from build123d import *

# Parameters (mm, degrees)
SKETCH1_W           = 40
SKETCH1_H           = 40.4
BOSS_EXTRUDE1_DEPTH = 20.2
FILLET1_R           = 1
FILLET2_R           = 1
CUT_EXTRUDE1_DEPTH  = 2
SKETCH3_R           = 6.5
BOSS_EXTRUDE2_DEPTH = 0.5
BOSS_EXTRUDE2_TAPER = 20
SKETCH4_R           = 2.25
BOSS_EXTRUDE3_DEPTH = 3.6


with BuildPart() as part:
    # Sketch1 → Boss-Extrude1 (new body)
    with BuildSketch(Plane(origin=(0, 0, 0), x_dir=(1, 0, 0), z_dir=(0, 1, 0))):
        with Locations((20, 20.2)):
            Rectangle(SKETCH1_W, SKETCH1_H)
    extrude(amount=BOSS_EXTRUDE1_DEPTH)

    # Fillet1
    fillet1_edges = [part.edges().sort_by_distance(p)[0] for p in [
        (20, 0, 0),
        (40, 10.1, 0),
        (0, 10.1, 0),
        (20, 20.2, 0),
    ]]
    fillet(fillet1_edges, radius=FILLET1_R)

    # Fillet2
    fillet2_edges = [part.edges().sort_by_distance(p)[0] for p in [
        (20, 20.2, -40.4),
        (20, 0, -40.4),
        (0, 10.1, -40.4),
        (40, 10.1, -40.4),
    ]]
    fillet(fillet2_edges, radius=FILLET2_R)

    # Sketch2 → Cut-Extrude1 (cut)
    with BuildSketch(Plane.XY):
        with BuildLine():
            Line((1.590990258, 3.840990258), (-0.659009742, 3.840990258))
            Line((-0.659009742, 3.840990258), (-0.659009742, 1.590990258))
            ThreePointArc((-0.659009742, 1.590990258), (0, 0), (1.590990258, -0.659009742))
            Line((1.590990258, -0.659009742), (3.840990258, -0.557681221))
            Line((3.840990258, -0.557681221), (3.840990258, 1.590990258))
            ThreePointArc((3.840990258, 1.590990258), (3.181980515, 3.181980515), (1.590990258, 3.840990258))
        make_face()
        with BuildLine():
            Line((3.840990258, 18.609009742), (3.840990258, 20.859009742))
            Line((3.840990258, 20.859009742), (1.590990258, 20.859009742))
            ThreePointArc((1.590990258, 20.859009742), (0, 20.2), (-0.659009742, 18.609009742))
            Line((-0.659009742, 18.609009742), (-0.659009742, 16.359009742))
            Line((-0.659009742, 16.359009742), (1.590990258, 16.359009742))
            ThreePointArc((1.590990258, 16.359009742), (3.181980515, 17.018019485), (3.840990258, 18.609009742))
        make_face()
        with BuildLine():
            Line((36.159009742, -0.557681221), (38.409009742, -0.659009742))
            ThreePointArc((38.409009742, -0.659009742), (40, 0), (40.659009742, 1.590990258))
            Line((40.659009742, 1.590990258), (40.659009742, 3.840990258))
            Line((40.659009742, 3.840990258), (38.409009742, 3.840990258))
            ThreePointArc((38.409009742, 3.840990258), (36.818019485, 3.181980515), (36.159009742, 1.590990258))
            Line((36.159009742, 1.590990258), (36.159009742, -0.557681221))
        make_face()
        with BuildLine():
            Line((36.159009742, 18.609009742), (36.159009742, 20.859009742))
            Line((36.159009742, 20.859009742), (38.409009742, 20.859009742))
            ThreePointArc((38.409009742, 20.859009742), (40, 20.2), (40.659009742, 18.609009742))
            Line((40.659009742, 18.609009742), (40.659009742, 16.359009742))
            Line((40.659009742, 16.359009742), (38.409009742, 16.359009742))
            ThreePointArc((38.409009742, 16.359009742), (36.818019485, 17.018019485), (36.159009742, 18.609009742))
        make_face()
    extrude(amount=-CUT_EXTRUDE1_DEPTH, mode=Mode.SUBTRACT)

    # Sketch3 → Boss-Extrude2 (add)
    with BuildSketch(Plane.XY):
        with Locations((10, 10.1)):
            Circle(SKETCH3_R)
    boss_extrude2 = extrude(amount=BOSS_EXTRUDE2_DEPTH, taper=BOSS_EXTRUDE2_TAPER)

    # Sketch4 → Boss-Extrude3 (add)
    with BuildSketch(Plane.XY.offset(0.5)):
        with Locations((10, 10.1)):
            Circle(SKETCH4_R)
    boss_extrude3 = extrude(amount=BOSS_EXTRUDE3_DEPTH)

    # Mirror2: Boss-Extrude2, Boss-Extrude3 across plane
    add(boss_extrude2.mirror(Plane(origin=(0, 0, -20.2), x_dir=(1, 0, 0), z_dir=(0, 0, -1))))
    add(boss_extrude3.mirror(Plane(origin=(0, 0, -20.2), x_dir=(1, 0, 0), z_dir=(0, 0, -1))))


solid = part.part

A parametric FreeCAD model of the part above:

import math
import FreeCAD as App
import Part
import Sketcher


def edges_at(feature, points):
    """Names of the edges that pass closest to the given points."""
    edges = feature.Shape.Edges
    near = lambda p: min(range(len(edges)), key=lambda i: edges[i].distToShape(Part.Vertex(*p))[0])
    return sorted({f"Edge{near(p) + 1}" for p in points})


def add_polygon(sketch, points):
    """Adds a closed chain of lines whose ends are joined by coincident constraints."""
    first, n = sketch.GeometryCount, len(points)
    for a, b in zip(points, points[1:] + points[:1]):
        sketch.addGeometry(Part.LineSegment(App.Vector(*a, 0), App.Vector(*b, 0)), False)
    for i in range(n):
        sketch.addConstraint(Sketcher.Constraint("Coincident", first + i, 2, first + (i + 1) % n, 1))

doc = App.newDocument("Part")
params = doc.addObject("Spreadsheet::Sheet", "Params")
for row, (alias, value) in enumerate([
    ("sketch1_width", "40 mm"),
    ("sketch1_height", "40.4 mm"),
    ("pad1_length", "20.2 mm"),
    ("fillet_radius", "1 mm"),
    ("fillet2_radius", "1 mm"),
    ("sketch2_radius", "2.25 mm"),
    ("pocket1_length", "2 mm"),
    ("sketch3_diameter", "13 mm"),
    ("pad2_length", "0.5 mm"),
    ("pad2_taper", "-20 deg"),
    ("sketch4_diameter", "4.5 mm"),
    ("pad3_length", "3.6 mm"),
], start=1):
    params.set(f"A{row}", alias)
    params.set(f"B{row}", "=" + value)
    params.setAlias(f"B{row}", alias)

body = doc.addObject("PartDesign::Body", "Body")

sketch1 = doc.addObject("Sketcher::SketchObject", "Sketch")
body.addObject(sketch1)
sketch1.AttachmentSupport = (doc.XZ_Plane, [""])
sketch1.MapMode = "FlatFace"
add_polygon(sketch1, [(0, -40), (0, 0), (40, 0), (40, -40)])
sketch1.addConstraint([
    Sketcher.Constraint("Vertical", 0),
    Sketcher.Constraint("Horizontal", 1),
    Sketcher.Constraint("Vertical", 2),
    Sketcher.Constraint("Horizontal", 3),
    Sketcher.Constraint("Coincident", 0, 2, -1, 1),
    Sketcher.Constraint("DistanceX", 1, 1, 1, 2, 40.0),
    Sketcher.Constraint("DistanceY", 0, 1, 0, 2, 40.4),
])
sketch1.setExpression("Constraints[9]", "Params.sketch1_width")
sketch1.setExpression("Constraints[10]", "Params.sketch1_height")
pad1 = doc.addObject("PartDesign::Pad", "Pad")
body.addObject(pad1)
pad1.Profile = sketch1
pad1.setExpression("Length", "Params.pad1_length")
pad1.Reversed = True
doc.recompute()

fillet = doc.addObject("PartDesign::Fillet", "Fillet")
body.addObject(fillet)
fillet.Base = (pad1, edges_at(pad1, [
    (20, 0, 0),
    (40, 10.1, 0),
    (0, 10.1, 0),
    (20, 20.2, 0),
]))
fillet.setExpression("Radius", "Params.fillet_radius")
doc.recompute()

fillet2 = doc.addObject("PartDesign::Fillet", "Fillet001")
body.addObject(fillet2)
fillet2.Base = (fillet, edges_at(fillet, [
    (20, 20.2, -40.4),
    (20, 0, -40.4),
    (0, 10.1, -40.4),
    (40, 10.1, -40.4),
]))
fillet2.setExpression("Radius", "Params.fillet2_radius")

sketch2 = doc.addObject("Sketcher::SketchObject", "Sketch001")
body.addObject(sketch2)
sketch2.AttachmentSupport = (doc.XY_Plane, [""])
sketch2.MapMode = "FlatFace"
sketch2.addGeometry([
    Part.LineSegment(App.Vector(1.6, 3.8, 0), App.Vector(-0.7, 3.8, 0)),
    Part.LineSegment(App.Vector(-0.7, 3.8, 0), App.Vector(-0.7, 1.6, 0)),
    Part.ArcOfCircle(Part.Circle(App.Vector(1.6, 1.6, 0), App.Vector(0, 0, 1), 2.2), math.radians(180), math.radians(270)),
    Part.LineSegment(App.Vector(1.6, -0.7, 0), App.Vector(3.8, -0.6, 0)),
    Part.LineSegment(App.Vector(3.8, -0.6, 0), App.Vector(3.8, 1.6, 0)),
    Part.ArcOfCircle(Part.Circle(App.Vector(1.6, 1.6, 0), App.Vector(0, 0, 1), 2.3), math.radians(0), math.radians(90)),
    Part.LineSegment(App.Vector(3.8, 18.6, 0), App.Vector(3.8, 20.9, 0)),
    Part.LineSegment(App.Vector(3.8, 20.9, 0), App.Vector(1.6, 20.9, 0)),
    Part.ArcOfCircle(Part.Circle(App.Vector(1.6, 18.6, 0), App.Vector(0, 0, 1), 2.2), math.radians(90), math.radians(180)),
    Part.LineSegment(App.Vector(-0.7, 18.6, 0), App.Vector(-0.7, 16.4, 0)),
    Part.LineSegment(App.Vector(-0.7, 16.4, 0), App.Vector(1.6, 16.4, 0)),
    Part.ArcOfCircle(Part.Circle(App.Vector(1.6, 18.6, 0), App.Vector(0, 0, 1), 2.3), math.radians(-90), math.radians(0)),
    Part.LineSegment(App.Vector(36.2, -0.6, 0), App.Vector(38.4, -0.7, 0)),
    Part.ArcOfCircle(Part.Circle(App.Vector(38.4, 1.6, 0), App.Vector(0, 0, 1), 2.2), math.radians(-90), math.radians(0)),
    Part.LineSegment(App.Vector(40.7, 1.6, 0), App.Vector(40.7, 3.8, 0)),
    Part.LineSegment(App.Vector(40.7, 3.8, 0), App.Vector(38.4, 3.8, 0)),
    Part.ArcOfCircle(Part.Circle(App.Vector(38.4, 1.6, 0), App.Vector(0, 0, 1), 2.3), math.radians(90), math.radians(180)),
    Part.LineSegment(App.Vector(36.2, 1.6, 0), App.Vector(36.2, -0.6, 0)),
    Part.LineSegment(App.Vector(36.2, 20.9, 0), App.Vector(36.2, 18.6, 0)),
    Part.ArcOfCircle(Part.Circle(App.Vector(38.4, 18.6, 0), App.Vector(0, 0, 1), 2.3), math.radians(-180), math.radians(-90)),
    Part.LineSegment(App.Vector(38.4, 16.4, 0), App.Vector(40.7, 16.4, 0)),
    Part.LineSegment(App.Vector(40.7, 16.4, 0), App.Vector(40.7, 18.6, 0)),
    Part.ArcOfCircle(Part.Circle(App.Vector(38.4, 18.6, 0), App.Vector(0, 0, 1), 2.2), math.radians(0), math.radians(90)),
    Part.LineSegment(App.Vector(38.4, 20.9, 0), App.Vector(36.2, 20.9, 0)),
], False)
sketch2.addConstraint([
    Sketcher.Constraint("Coincident", 0, 2, 1, 1),
    Sketcher.Constraint("Tangent", 1, 2, 2, 1),
    Sketcher.Constraint("Coincident", 2, 2, 3, 1),
    Sketcher.Constraint("Coincident", 3, 2, 4, 1),
    Sketcher.Constraint("Tangent", 4, 2, 5, 1),
    Sketcher.Constraint("Tangent", 5, 2, 0, 1),
    Sketcher.Constraint("Coincident", 6, 2, 7, 1),
    Sketcher.Constraint("Tangent", 7, 2, 8, 1),
    Sketcher.Constraint("Tangent", 8, 2, 9, 1),
    Sketcher.Constraint("Coincident", 9, 2, 10, 1),
    Sketcher.Constraint("Tangent", 10, 2, 11, 1),
    Sketcher.Constraint("Tangent", 11, 2, 6, 1),
    Sketcher.Constraint("Coincident", 12, 2, 13, 1),
    Sketcher.Constraint("Tangent", 13, 2, 14, 1),
    Sketcher.Constraint("Coincident", 14, 2, 15, 1),
    Sketcher.Constraint("Tangent", 15, 2, 16, 1),
    Sketcher.Constraint("Tangent", 16, 2, 17, 1),
    Sketcher.Constraint("Coincident", 17, 2, 12, 1),
    Sketcher.Constraint("Tangent", 18, 2, 19, 1),
    Sketcher.Constraint("Tangent", 19, 2, 20, 1),
    Sketcher.Constraint("Coincident", 20, 2, 21, 1),
    Sketcher.Constraint("Tangent", 21, 2, 22, 1),
    Sketcher.Constraint("Tangent", 22, 2, 23, 1),
    Sketcher.Constraint("Coincident", 23, 2, 18, 1),
    Sketcher.Constraint("Horizontal", 0),
    Sketcher.Constraint("Vertical", 1),
    Sketcher.Constraint("Vertical", 4),
    Sketcher.Constraint("Vertical", 6),
    Sketcher.Constraint("Horizontal", 7),
    Sketcher.Constraint("Vertical", 9),
    Sketcher.Constraint("Horizontal", 10),
    Sketcher.Constraint("Vertical", 14),
    Sketcher.Constraint("Horizontal", 15),
    Sketcher.Constraint("Vertical", 17),
    Sketcher.Constraint("Vertical", 18),
    Sketcher.Constraint("Horizontal", 20),
    Sketcher.Constraint("Vertical", 21),
    Sketcher.Constraint("Horizontal", 23),
    Sketcher.Constraint("Coincident", 5, 3, 2, 3),
    Sketcher.Constraint("Coincident", 11, 3, 8, 3),
    Sketcher.Constraint("Coincident", 16, 3, 13, 3),
    Sketcher.Constraint("Coincident", 22, 3, 19, 3),
    Sketcher.Constraint("Equal", 2, 5),
    Sketcher.Constraint("Equal", 5, 8),
    Sketcher.Constraint("Equal", 8, 11),
    Sketcher.Constraint("Equal", 11, 13),
    Sketcher.Constraint("Equal", 13, 16),
    Sketcher.Constraint("Equal", 16, 19),
    Sketcher.Constraint("Equal", 19, 22),
    Sketcher.Constraint("Horizontal", 5, 3, 13, 3),
    Sketcher.Constraint("Horizontal", 11, 3, 19, 3),
    Sketcher.Constraint("Horizontal", 3, 2, 17, 2),
    Sketcher.Constraint("Vertical", 5, 3, 8, 3),
    Sketcher.Constraint("Vertical", 16, 3, 19, 3),
    Sketcher.Constraint("Vertical", 11, 3, 2, 2),
    Sketcher.Constraint("Vertical", 22, 3, 12, 2),
    Sketcher.Constraint("Radius", 2, 2.25),
    Sketcher.Constraint("DistanceY", 4, 1, 4, 2, 2.148671),
    Sketcher.Constraint("DistanceX", -1, 1, 2, 3, 1.59099),
    Sketcher.Constraint("DistanceY", -1, 1, 2, 3, 1.59099),
    Sketcher.Constraint("DistanceY", -1, 1, 8, 3, 18.60901),
    Sketcher.Constraint("DistanceX", -1, 1, 13, 3, 38.40901),
])
sketch2.setExpression("Constraints[56]", "Params.sketch2_radius")
pocket1 = doc.addObject("PartDesign::Pocket", "Pocket")
body.addObject(pocket1)
pocket1.Profile = sketch2
pocket1.setExpression("Length", "Params.pocket1_length")

sketch3 = doc.addObject("Sketcher::SketchObject", "Sketch002")
body.addObject(sketch3)
sketch3.AttachmentSupport = (doc.XY_Plane, [""])
sketch3.MapMode = "FlatFace"
sketch3.addGeometry(Part.Circle(App.Vector(10, 10, 0), App.Vector(0, 0, 1), 6), False)
sketch3.addConstraint([
    Sketcher.Constraint("Diameter", 0, 13.0),
    Sketcher.Constraint("DistanceX", -1, 1, 0, 3, 10.0),
    Sketcher.Constraint("DistanceY", -1, 1, 0, 3, 10.1),
])
sketch3.setExpression("Constraints[0]", "Params.sketch3_diameter")
pad2 = doc.addObject("PartDesign::Pad", "Pad001")
body.addObject(pad2)
pad2.Profile = sketch3
pad2.setExpression("Length", "Params.pad2_length")
pad2.setExpression("TaperAngle", "Params.pad2_taper")

sketch4 = doc.addObject("Sketcher::SketchObject", "Sketch003")
body.addObject(sketch4)
sketch4.AttachmentSupport = (doc.XY_Plane, [""])
sketch4.MapMode = "FlatFace"
sketch4.AttachmentOffset = App.Placement(App.Vector(0, 0, 0.5), App.Rotation())
sketch4.addGeometry(Part.Circle(App.Vector(10, 10.1, 0), App.Vector(0, 0, 1), 2.2), False)
sketch4.addConstraint([
    Sketcher.Constraint("Diameter", 0, 4.5),
    Sketcher.Constraint("DistanceX", -1, 1, 0, 3, 10.0),
    Sketcher.Constraint("DistanceY", -1, 1, 0, 3, 10.1),
])
sketch4.setExpression("Constraints[0]", "Params.sketch4_diameter")
pad3 = doc.addObject("PartDesign::Pad", "Pad002")
body.addObject(pad3)
pad3.Profile = sketch4
pad3.setExpression("Length", "Params.pad3_length")
doc.recompute()

datumplane = doc.addObject("PartDesign::Plane", "DatumPlane")
body.addObject(datumplane)
datumplane.AttachmentSupport = (doc.XY_Plane, [""])
datumplane.MapMode = "FlatFace"
datumplane.AttachmentOffset = App.Placement(App.Vector(0, 0, -20.2), App.Rotation())
mirrored = doc.addObject("PartDesign::Mirrored", "Mirrored")
body.addObject(mirrored)
mirrored.Originals = [pad2, pad3]
mirrored.MirrorPlane = (datumplane, [""])
body.Tip = mirrored

doc.recompute()
